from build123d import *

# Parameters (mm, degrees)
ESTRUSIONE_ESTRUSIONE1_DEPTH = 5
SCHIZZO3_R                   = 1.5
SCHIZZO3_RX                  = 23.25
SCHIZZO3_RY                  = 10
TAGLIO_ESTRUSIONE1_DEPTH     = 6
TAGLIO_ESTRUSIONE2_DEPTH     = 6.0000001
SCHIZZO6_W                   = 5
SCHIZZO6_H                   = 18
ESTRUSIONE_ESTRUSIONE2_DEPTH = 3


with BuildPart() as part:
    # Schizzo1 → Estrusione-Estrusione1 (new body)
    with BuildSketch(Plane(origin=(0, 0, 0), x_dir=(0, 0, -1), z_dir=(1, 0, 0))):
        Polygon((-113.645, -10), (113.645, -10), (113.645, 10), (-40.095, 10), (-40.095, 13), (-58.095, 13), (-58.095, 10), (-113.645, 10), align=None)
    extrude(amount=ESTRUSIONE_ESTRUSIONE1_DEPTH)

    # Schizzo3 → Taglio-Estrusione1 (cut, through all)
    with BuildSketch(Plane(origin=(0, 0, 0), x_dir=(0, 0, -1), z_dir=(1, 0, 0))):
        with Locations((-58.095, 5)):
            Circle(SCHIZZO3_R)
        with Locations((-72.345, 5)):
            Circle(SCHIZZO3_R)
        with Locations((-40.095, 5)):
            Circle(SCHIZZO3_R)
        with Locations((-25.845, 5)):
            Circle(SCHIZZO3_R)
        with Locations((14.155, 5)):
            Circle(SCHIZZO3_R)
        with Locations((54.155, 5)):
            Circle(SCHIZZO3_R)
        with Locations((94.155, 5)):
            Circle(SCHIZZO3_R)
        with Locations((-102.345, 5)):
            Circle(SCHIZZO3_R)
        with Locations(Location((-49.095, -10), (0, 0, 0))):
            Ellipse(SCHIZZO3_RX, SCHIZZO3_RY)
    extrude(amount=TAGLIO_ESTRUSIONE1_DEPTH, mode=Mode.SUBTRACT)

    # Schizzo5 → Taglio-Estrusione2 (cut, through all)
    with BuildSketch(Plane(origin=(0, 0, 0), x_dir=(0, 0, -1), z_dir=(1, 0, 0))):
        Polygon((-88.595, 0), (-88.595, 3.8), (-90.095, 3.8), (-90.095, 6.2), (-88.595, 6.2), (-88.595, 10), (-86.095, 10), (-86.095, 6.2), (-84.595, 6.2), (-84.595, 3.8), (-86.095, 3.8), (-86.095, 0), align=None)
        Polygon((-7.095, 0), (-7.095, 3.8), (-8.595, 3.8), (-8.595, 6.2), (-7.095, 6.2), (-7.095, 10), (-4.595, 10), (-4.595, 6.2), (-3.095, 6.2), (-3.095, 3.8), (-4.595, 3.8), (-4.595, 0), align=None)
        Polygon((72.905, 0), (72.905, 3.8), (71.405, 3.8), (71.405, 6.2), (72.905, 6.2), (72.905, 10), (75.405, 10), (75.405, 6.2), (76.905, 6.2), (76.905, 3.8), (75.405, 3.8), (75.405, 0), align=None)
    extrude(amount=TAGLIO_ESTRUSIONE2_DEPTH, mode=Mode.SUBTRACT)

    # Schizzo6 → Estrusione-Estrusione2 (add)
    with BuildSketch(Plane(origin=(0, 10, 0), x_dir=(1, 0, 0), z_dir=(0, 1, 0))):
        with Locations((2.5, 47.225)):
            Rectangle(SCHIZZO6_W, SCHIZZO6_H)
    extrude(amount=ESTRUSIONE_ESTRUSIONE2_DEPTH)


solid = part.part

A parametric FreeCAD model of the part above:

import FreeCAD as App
import Part
import Sketcher
Q = App.Units.Quantity


def add_polygon(sketch, points):
    """Adds a closed chain of lines whose ends are joined by coincident constraints."""
    first, n = sketch.GeometryCount, len(points)
    for a, b in zip(points, points[1:] + points[:1]):
        sketch.addGeometry(Part.LineSegment(App.Vector(*a, 0), App.Vector(*b, 0)), False)
    for i in range(n):
        sketch.addConstraint(Sketcher.Constraint("Coincident", first + i, 2, first + (i + 1) % n, 1))

doc = App.newDocument("Part")
body = doc.addObject("PartDesign::Body", "Body")

# Sketch on YZ plane
sketch1 = body.newObject("Sketcher::SketchObject", "Sketch")
sketch1.AttachmentSupport = (doc.getObject("YZ_Plane"), [""])
sketch1.MapMode = "FlatFace"
add_polygon(sketch1, [(-10, 113.6), (-10, -113.6), (10, -113.6), (10, 40.1), (13, 40.1), (13, 58.1), (10, 58.1), (10, 113.6)])  # lines 0-7
sketch1.addConstraint(Sketcher.Constraint("Vertical", 0))
sketch1.addConstraint(Sketcher.Constraint("Horizontal", 1))
sketch1.addConstraint(Sketcher.Constraint("Vertical", 2))
sketch1.addConstraint(Sketcher.Constraint("Horizontal", 3))
sketch1.addConstraint(Sketcher.Constraint("Vertical", 4))
sketch1.addConstraint(Sketcher.Constraint("Horizontal", 5))
sketch1.addConstraint(Sketcher.Constraint("Vertical", 6))
sketch1.addConstraint(Sketcher.Constraint("Horizontal", 7))
sketch1.addConstraint(Sketcher.Constraint("Symmetric", 0, 2, 6, 2, -1, 1))
sketch1.addConstraint(Sketcher.Constraint("Vertical", 2, 2, 5, 2))
sketch1.addConstraint(Sketcher.Constraint("DistanceX", 1, 1, 1, 2, Q("20 mm")))
sketch1.addConstraint(Sketcher.Constraint("DistanceX", 3, 1, 3, 2, Q("3 mm")))
sketch1.addConstraint(Sketcher.Constraint("DistanceY", 4, 1, 4, 2, Q("18 mm")))
sketch1.addConstraint(Sketcher.Constraint("DistanceY", 0, 2, 0, 1, Q("227.29 mm")))
sketch1.addConstraint(Sketcher.Constraint("DistanceY", 2, 1, 2, 2, Q("153.74 mm")))
pad1 = body.newObject("PartDesign::Pad", "Pad")
pad1.Profile = sketch1
pad1.Length = 5

# Sketch on YZ plane
sketch2 = body.newObject("Sketcher::SketchObject", "Sketch001")
sketch2.AttachmentSupport = (doc.getObject("YZ_Plane"), [""])
sketch2.MapMode = "FlatFace"
sketch2.addGeometry(Part.Circle(App.Vector(5, 58.095, 0), App.Vector(0, 0, 1), 1.5), False)
sketch2.addGeometry(Part.Circle(App.Vector(5, 72.345, 0), App.Vector(0, 0, 1), 1.5), False)
sketch2.addGeometry(Part.Circle(App.Vector(5, 40.095, 0), App.Vector(0, 0, 1), 1.5), False)
sketch2.addGeometry(Part.Circle(App.Vector(5, 25.845, 0), App.Vector(0, 0, 1), 1.5), False)
sketch2.addGeometry(Part.Circle(App.Vector(5, -14.155, 0), App.Vector(0, 0, 1), 1.5), False)
sketch2.addGeometry(Part.Circle(App.Vector(5, -54.155, 0), App.Vector(0, 0, 1), 1.5), False)
sketch2.addGeometry(Part.Circle(App.Vector(5, -94.155, 0), App.Vector(0, 0, 1), 1.5), False)
sketch2.addGeometry(Part.Circle(App.Vector(5, 102.345, 0), App.Vector(0, 0, 1), 1.5), False)
sketch2.addGeometry(Part.Ellipse(App.Vector(-10, 25.845, 0), App.Vector(0, 49.095, 0), App.Vector(-10, 49.095, 0)), False)
sketch2.addConstraint(Sketcher.Constraint("Block", 8))
sketch2.addConstraint(Sketcher.Constraint("Equal", 0, 1))
sketch2.addConstraint(Sketcher.Constraint("Equal", 1, 2))
sketch2.addConstraint(Sketcher.Constraint("Equal", 2, 3))
sketch2.addConstraint(Sketcher.Constraint("Equal", 3, 4))
sketch2.addConstraint(Sketcher.Constraint("Equal", 4, 5))
sketch2.addConstraint(Sketcher.Constraint("Equal", 5, 6))
sketch2.addConstraint(Sketcher.Constraint("Equal", 6, 7))
sketch2.addConstraint(Sketcher.Constraint("Vertical", 0, 3, 1, 3))
sketch2.addConstraint(Sketcher.Constraint("Vertical", 1, 3, 2, 3))
sketch2.addConstraint(Sketcher.Constraint("Vertical", 2, 3, 3, 3))
sketch2.addConstraint(Sketcher.Constraint("Vertical", 3, 3, 4, 3))
sketch2.addConstraint(Sketcher.Constraint("Vertical", 4, 3, 5, 3))
sketch2.addConstraint(Sketcher.Constraint("Vertical", 5, 3, 6, 3))
sketch2.addConstraint(Sketcher.Constraint("Vertical", 6, 3, 7, 3))
sketch2.addConstraint(Sketcher.Constraint("Diameter", 0, Q("3 mm")))
sketch2.addConstraint(Sketcher.Constraint("DistanceX", -1, 1, 0, 3, Q("5 mm")))
sketch2.addConstraint(Sketcher.Constraint("DistanceY", 2, 3, 0, 3, Q("18 mm")))
sketch2.addConstraint(Sketcher.Constraint("DistanceY", 4, 3, 3, 3, Q("40 mm")))
sketch2.addConstraint(Sketcher.Constraint("DistanceY", 5, 3, 4, 3, Q("40 mm")))
sketch2.addConstraint(Sketcher.Constraint("DistanceY", 6, 3, 5, 3, Q("40 mm")))
sketch2.addConstraint(Sketcher.Constraint("DistanceY", 1, 3, 7, 3, Q("30 mm")))
sketch2.addConstraint(Sketcher.Constraint("DistanceY", 3, 3, 1, 3, Q("46.5 mm")))
sketch2.addConstraint(Sketcher.Constraint("DistanceY", 0, 3, 1, 3, Q("14.25 mm")))
sketch2.addConstraint(Sketcher.Constraint("DistanceY", -1, 1, 0, 3, Q("58.095 mm")))
pocket1 = body.newObject("PartDesign::Pocket", "Pocket")
pocket1.Profile = sketch2
pocket1.Type = "ThroughAll"
pocket1.Reversed = True

# Sketch on YZ plane
sketch3 = body.newObject("Sketcher::SketchObject", "Sketch002")
sketch3.AttachmentSupport = (doc.getObject("YZ_Plane"), [""])
sketch3.MapMode = "FlatFace"
add_polygon(sketch3, [(3.8, 88.6), (0, 88.6), (0, 86.1), (3.8, 86.1), (3.8, 84.6), (6.2, 84.6), (6.2, 86.1), (10, 86.1), (10, 88.6), (6.2, 88.6), (6.2, 90.1), (3.8, 90.1)])  # lines 0-11
add_polygon(sketch3, [(3.8, 7.1), (0, 7.1), (0, 4.6), (3.8, 4.6), (3.8, 3.1), (6.2, 3.1), (6.2, 4.6), (10, 4.6), (10, 7.1), (6.2, 7.1), (6.2, 8.6), (3.8, 8.6)])  # lines 12-23
add_polygon(sketch3, [(3.8, -72.9), (0, -72.9), (0, -75.4), (3.8, -75.4), (3.8, -76.9), (6.2, -76.9), (6.2, -75.4), (10, -75.4), (10, -72.9), (6.2, -72.9), (6.2, -71.4), (3.8, -71.4)])  # lines 24-35
sketch3.addConstraint(Sketcher.Constraint("Horizontal", 0))
sketch3.addConstraint(Sketcher.Constraint("Vertical", 1))
sketch3.addConstraint(Sketcher.Constraint("Horizontal", 2))
sketch3.addConstraint(Sketcher.Constraint("Vertical", 3))
sketch3.addConstraint(Sketcher.Constraint("Horizontal", 4))
sketch3.addConstraint(Sketcher.Constraint("Vertical", 5))
sketch3.addConstraint(Sketcher.Constraint("Horizontal", 6))
sketch3.addConstraint(Sketcher.Constraint("Vertical", 7))
sketch3.addConstraint(Sketcher.Constraint("Horizontal", 8))
sketch3.addConstraint(Sketcher.Constraint("Vertical", 9))
sketch3.addConstraint(Sketcher.Constraint("Horizontal", 10))
sketch3.addConstraint(Sketcher.Constraint("Vertical", 11))
sketch3.addConstraint(Sketcher.Constraint("Horizontal", 12))
sketch3.addConstraint(Sketcher.Constraint("Vertical", 13))
sketch3.addConstraint(Sketcher.Constraint("Horizontal", 14))
sketch3.addConstraint(Sketcher.Constraint("Vertical", 15))
sketch3.addConstraint(Sketcher.Constraint("Horizontal", 16))
sketch3.addConstraint(Sketcher.Constraint("Vertical", 17))
sketch3.addConstraint(Sketcher.Constraint("Horizontal", 18))
sketch3.addConstraint(Sketcher.Constraint("Vertical", 19))
sketch3.addConstraint(Sketcher.Constraint("Horizontal", 20))
sketch3.addConstraint(Sketcher.Constraint("Vertical", 21))
sketch3.addConstraint(Sketcher.Constraint("Horizontal", 22))
sketch3.addConstraint(Sketcher.Constraint("Vertical", 23))
sketch3.addConstraint(Sketcher.Constraint("Horizontal", 24))
sketch3.addConstraint(Sketcher.Constraint("Vertical", 25))
sketch3.addConstraint(Sketcher.Constraint("Horizontal", 26))
sketch3.addConstraint(Sketcher.Constraint("Vertical", 27))
sketch3.addConstraint(Sketcher.Constraint("Horizontal", 28))
sketch3.addConstraint(Sketcher.Constraint("Vertical", 29))
sketch3.addConstraint(Sketcher.Constraint("Horizontal", 30))
sketch3.addConstraint(Sketcher.Constraint("Vertical", 31))
sketch3.addConstraint(Sketcher.Constraint("Horizontal", 32))
sketch3.addConstraint(Sketcher.Constraint("Vertical", 33))
sketch3.addConstraint(Sketcher.Constraint("Horizontal", 34))
sketch3.addConstraint(Sketcher.Constraint("Vertical", 35))
sketch3.addConstraint(Sketcher.Constraint("PointOnObject", 0, 2, -2))
sketch3.addConstraint(Sketcher.Constraint("PointOnObject", 12, 2, -2))
sketch3.addConstraint(Sketcher.Constraint("PointOnObject", 24, 2, -2))
sketch3.addConstraint(Sketcher.Constraint("Horizontal", 2, 2, 5, 2))
sketch3.addConstraint(Sketcher.Constraint("Horizontal", 0, 2, 7, 2))
sketch3.addConstraint(Sketcher.Constraint("Horizontal", 14, 2, 17, 2))
sketch3.addConstraint(Sketcher.Constraint("Horizontal", 12, 2, 19, 2))
sketch3.addConstraint(Sketcher.Constraint("Horizontal", 26, 2, 29, 2))
sketch3.addConstraint(Sketcher.Constraint("Horizontal", 24, 2, 31, 2))
sketch3.addConstraint(Sketcher.Constraint("Vertical", 5, 2, 8, 2))
sketch3.addConstraint(Sketcher.Constraint("Vertical", 3, 2, 10, 2))
sketch3.addConstraint(Sketcher.Constraint("Vertical", 11, 2, 14, 2))
sketch3.addConstraint(Sketcher.Constraint("Vertical", 9, 2, 16, 2))
sketch3.addConstraint(Sketcher.Constraint("Vertical", 7, 2, 18, 2))
sketch3.addConstraint(Sketcher.Constraint("Vertical", 17, 2, 20, 2))
sketch3.addConstraint(Sketcher.Constraint("Vertical", 15, 2, 22, 2))
sketch3.addConstraint(Sketcher.Constraint("Vertical", 23, 2, 26, 2))
sketch3.addConstraint(Sketcher.Constraint("Vertical", 21, 2, 28, 2))
sketch3.addConstraint(Sketcher.Constraint("Vertical", 19, 2, 30, 2))
sketch3.addConstraint(Sketcher.Constraint("Vertical", 29, 2, 32, 2))
sketch3.addConstraint(Sketcher.Constraint("Vertical", 27, 2, 34, 2))
sketch3.addConstraint(Sketcher.Constraint("Equal", 2, 6))
sketch3.addConstraint(Sketcher.Constraint("Equal", 5, 9))
sketch3.addConstraint(Sketcher.Constraint("Equal", 7, 13))
sketch3.addConstraint(Sketcher.Constraint("Equal", 11, 15))
sketch3.addConstraint(Sketcher.Constraint("Equal", 17, 21))
sketch3.addConstraint(Sketcher.Constraint("Equal", 19, 25))
sketch3.addConstraint(Sketcher.Constraint("Equal", 23, 27))
sketch3.addConstraint(Sketcher.Constraint("Equal", 29, 33))
sketch3.addConstraint(Sketcher.Constraint("DistanceX", 0, 2, 0, 1, Q("3.8 mm")))
sketch3.addConstraint(Sketcher.Constraint("DistanceX", 4, 1, 4, 2, Q("2.4 mm")))
sketch3.addConstraint(Sketcher.Constraint("DistanceY", 1, 2, 1, 1, Q("2.5 mm")))
sketch3.addConstraint(Sketcher.Constraint("DistanceY", 3, 2, 3, 1, Q("1.5 mm")))
sketch3.addConstraint(Sketcher.Constraint("DistanceY", 12, 2, 1, 2, Q("79 mm")))
sketch3.addConstraint(Sketcher.Constraint("DistanceY", 24, 2, 15, 2, Q("76 mm")))
sketch3.addConstraint(Sketcher.Constraint("DistanceY", -1, 1, 0, 2, Q("88.595 mm")))
pocket2 = body.newObject("PartDesign::Pocket", "Pocket001")
pocket2.Profile = sketch3
pocket2.Type = "ThroughAll"
pocket2.Reversed = True

# Sketch on XZ plane
sketch4 = body.newObject("Sketcher::SketchObject", "Sketch003")
sketch4.AttachmentSupport = (doc.getObject("XZ_Plane"), [""])
sketch4.MapMode = "FlatFace"
sketch4.AttachmentOffset = App.Placement(App.Vector(0, 0, -10), App.Rotation())
add_polygon(sketch4, [(0, -56), (0, -38), (5, -38), (5, -56)])  # lines 0-3
sketch4.addConstraint(Sketcher.Constraint("Vertical", 0))
sketch4.addConstraint(Sketcher.Constraint("Horizontal", 1))
sketch4.addConstraint(Sketcher.Constraint("Vertical", 2))
sketch4.addConstraint(Sketcher.Constraint("Horizontal", 3))
sketch4.addConstraint(Sketcher.Constraint("PointOnObject", 0, 2, -2))
sketch4.addConstraint(Sketcher.Constraint("DistanceX", 1, 1, 1, 2, Q("5 mm")))
sketch4.addConstraint(Sketcher.Constraint("DistanceY", 0, 1, 0, 2, Q("18 mm")))
sketch4.addConstraint(Sketcher.Constraint("DistanceY", 0, 2, -1, 1, Q("38.225 mm")))
pad2 = body.newObject("PartDesign::Pad", "Pad001")
pad2.Profile = sketch4
pad2.Length = 3
pad2.Reversed = True

doc.recompute()
